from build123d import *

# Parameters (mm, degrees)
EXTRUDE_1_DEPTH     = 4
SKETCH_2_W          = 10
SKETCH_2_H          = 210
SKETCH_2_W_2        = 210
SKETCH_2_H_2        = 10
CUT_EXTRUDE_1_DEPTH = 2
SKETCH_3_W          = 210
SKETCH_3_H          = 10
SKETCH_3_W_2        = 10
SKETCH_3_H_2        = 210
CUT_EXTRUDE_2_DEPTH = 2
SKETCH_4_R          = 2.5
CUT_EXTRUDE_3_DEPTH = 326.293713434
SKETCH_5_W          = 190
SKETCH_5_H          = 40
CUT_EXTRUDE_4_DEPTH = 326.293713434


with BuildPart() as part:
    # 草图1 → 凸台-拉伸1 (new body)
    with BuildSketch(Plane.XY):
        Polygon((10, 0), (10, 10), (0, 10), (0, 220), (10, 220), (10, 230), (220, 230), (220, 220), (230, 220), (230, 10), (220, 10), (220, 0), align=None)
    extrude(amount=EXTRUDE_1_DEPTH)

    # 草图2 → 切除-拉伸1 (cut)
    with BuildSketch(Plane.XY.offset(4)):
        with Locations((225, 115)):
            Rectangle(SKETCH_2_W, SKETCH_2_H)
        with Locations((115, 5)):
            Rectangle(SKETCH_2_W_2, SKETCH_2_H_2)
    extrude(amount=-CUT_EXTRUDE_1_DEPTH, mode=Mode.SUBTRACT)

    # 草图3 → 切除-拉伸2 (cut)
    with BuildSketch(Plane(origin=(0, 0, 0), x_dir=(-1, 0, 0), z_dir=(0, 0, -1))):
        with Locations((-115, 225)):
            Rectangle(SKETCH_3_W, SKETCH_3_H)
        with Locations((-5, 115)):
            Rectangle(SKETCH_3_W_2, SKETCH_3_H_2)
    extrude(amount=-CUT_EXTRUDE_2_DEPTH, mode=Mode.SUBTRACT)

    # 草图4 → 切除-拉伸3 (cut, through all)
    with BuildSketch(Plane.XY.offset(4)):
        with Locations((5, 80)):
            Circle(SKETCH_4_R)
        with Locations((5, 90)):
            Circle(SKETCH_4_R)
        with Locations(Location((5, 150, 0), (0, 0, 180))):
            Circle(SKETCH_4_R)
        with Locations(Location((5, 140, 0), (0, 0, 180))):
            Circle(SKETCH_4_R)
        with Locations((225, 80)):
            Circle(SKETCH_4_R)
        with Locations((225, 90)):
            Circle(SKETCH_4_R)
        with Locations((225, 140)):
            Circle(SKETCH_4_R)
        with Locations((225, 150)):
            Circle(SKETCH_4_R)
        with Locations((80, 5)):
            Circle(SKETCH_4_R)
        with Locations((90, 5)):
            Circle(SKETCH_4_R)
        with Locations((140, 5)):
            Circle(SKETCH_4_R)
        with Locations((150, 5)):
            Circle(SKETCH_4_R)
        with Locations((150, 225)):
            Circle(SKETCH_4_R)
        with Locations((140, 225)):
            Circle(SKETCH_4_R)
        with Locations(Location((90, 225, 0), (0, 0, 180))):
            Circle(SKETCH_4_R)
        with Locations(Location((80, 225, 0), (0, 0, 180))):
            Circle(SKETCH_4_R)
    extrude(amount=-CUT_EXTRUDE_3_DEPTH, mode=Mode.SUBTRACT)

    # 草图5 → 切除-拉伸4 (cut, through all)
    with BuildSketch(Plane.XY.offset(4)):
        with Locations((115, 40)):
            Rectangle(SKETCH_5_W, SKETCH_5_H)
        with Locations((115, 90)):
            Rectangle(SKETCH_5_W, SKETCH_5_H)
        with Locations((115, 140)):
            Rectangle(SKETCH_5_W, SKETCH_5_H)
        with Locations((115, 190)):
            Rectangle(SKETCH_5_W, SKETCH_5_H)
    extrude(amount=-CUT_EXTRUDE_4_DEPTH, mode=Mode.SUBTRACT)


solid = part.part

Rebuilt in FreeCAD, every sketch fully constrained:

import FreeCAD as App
import Part
import Sketcher
from FreeCAD import Vector

doc = App.newDocument("Part")
body = doc.addObject("PartDesign::Body", "Body")

sketch1 = body.newObject("Sketcher::SketchObject", "Sketch")
sketch1.AttachmentSupport = (doc.getObject("XY_Plane"), [""])
sketch1.MapMode = "FlatFace"
sketch1.addGeometry(Part.LineSegment(Vector(10, 10, 0), Vector(10, 0, 0)), False)
sketch1.addGeometry(Part.LineSegment(Vector(10, 0, 0), Vector(220, 0, 0)), False)
sketch1.addGeometry(Part.LineSegment(Vector(220, 0, 0), Vector(220, 10, 0)), False)
sketch1.addGeometry(Part.LineSegment(Vector(220, 10, 0), Vector(230, 10, 0)), False)
sketch1.addGeometry(Part.LineSegment(Vector(230, 10, 0), Vector(230, 220, 0)), False)
sketch1.addGeometry(Part.LineSegment(Vector(230, 220, 0), Vector(220, 220, 0)), False)
sketch1.addGeometry(Part.LineSegment(Vector(220, 220, 0), Vector(220, 230, 0)), False)
sketch1.addGeometry(Part.LineSegment(Vector(220, 230, 0), Vector(10, 230, 0)), False)
sketch1.addGeometry(Part.LineSegment(Vector(10, 230, 0), Vector(10, 220, 0)), False)
sketch1.addGeometry(Part.LineSegment(Vector(10, 220, 0), Vector(0, 220, 0)), False)
sketch1.addGeometry(Part.LineSegment(Vector(0, 220, 0), Vector(0, 10, 0)), False)
sketch1.addGeometry(Part.LineSegment(Vector(0, 10, 0), Vector(10, 10, 0)), False)
sketch1.addConstraint(Sketcher.Constraint("Coincident", 0, 2, 1, 1))
sketch1.addConstraint(Sketcher.Constraint("Coincident", 1, 2, 2, 1))
sketch1.addConstraint(Sketcher.Constraint("Coincident", 2, 2, 3, 1))
sketch1.addConstraint(Sketcher.Constraint("Coincident", 3, 2, 4, 1))
sketch1.addConstraint(Sketcher.Constraint("Coincident", 4, 2, 5, 1))
sketch1.addConstraint(Sketcher.Constraint("Coincident", 5, 2, 6, 1))
sketch1.addConstraint(Sketcher.Constraint("Coincident", 6, 2, 7, 1))
sketch1.addConstraint(Sketcher.Constraint("Coincident", 7, 2, 8, 1))
sketch1.addConstraint(Sketcher.Constraint("Coincident", 8, 2, 9, 1))
sketch1.addConstraint(Sketcher.Constraint("Coincident", 9, 2, 10, 1))
sketch1.addConstraint(Sketcher.Constraint("Coincident", 10, 2, 11, 1))
sketch1.addConstraint(Sketcher.Constraint("Coincident", 11, 2, 0, 1))
sketch1.addConstraint(Sketcher.Constraint("Vertical", 0))
sketch1.addConstraint(Sketcher.Constraint("Horizontal", 1))
sketch1.addConstraint(Sketcher.Constraint("Vertical", 2))
sketch1.addConstraint(Sketcher.Constraint("Horizontal", 3))
sketch1.addConstraint(Sketcher.Constraint("Vertical", 4))
sketch1.addConstraint(Sketcher.Constraint("Horizontal", 5))
sketch1.addConstraint(Sketcher.Constraint("Vertical", 6))
sketch1.addConstraint(Sketcher.Constraint("Horizontal", 7))
sketch1.addConstraint(Sketcher.Constraint("Vertical", 8))
sketch1.addConstraint(Sketcher.Constraint("Horizontal", 9))
sketch1.addConstraint(Sketcher.Constraint("Vertical", 10))
sketch1.addConstraint(Sketcher.Constraint("Horizontal", 11))
sketch1.addConstraint(Sketcher.Constraint("PointOnObject", 0, 2, -1))
sketch1.addConstraint(Sketcher.Constraint("PointOnObject", 9, 2, -2))
sketch1.addConstraint(Sketcher.Constraint("Horizontal", 5, 2, 8, 2))
sketch1.addConstraint(Sketcher.Constraint("Horizontal", 3, 2, 10, 2))
sketch1.addConstraint(Sketcher.Constraint("Vertical", 2, 2, 5, 2))
sketch1.addConstraint(Sketcher.Constraint("Vertical", 0, 2, 7, 2))
sketch1.addConstraint(Sketcher.Constraint("Equal", 5, 9))
sketch1.addConstraint(Sketcher.Constraint("Equal", 11, 0))
sketch1.addConstraint(Sketcher.Constraint("Equal", 7, 4))
sketch1.addConstraint(Sketcher.Constraint("Equal", 2, 6))
sketch1.addConstraint(Sketcher.Constraint("DistanceX", 1, 1, 1, 2, 210.0))
sketch1.addConstraint(Sketcher.Constraint("DistanceX", 3, 1, 3, 2, 10.0))
pad1 = body.newObject("PartDesign::Pad", "Pad")
pad1.Profile = sketch1
pad1.Length = 4

sketch2 = body.newObject("Sketcher::SketchObject", "Sketch001")
sketch2.AttachmentSupport = (doc.getObject("XY_Plane"), [""])
sketch2.MapMode = "FlatFace"
sketch2.AttachmentOffset = App.Placement(Vector(0, 0, 4), App.Rotation())
sketch2.addGeometry(Part.LineSegment(Vector(220, 220, 0), Vector(220, 10, 0)), False)
sketch2.addGeometry(Part.LineSegment(Vector(220, 10, 0), Vector(230, 10, 0)), False)
sketch2.addGeometry(Part.LineSegment(Vector(230, 10, 0), Vector(230, 220, 0)), False)
sketch2.addGeometry(Part.LineSegment(Vector(230, 220, 0), Vector(220, 220, 0)), False)
sketch2.addGeometry(Part.LineSegment(Vector(10, 10, 0), Vector(10, 0, 0)), False)
sketch2.addGeometry(Part.LineSegment(Vector(10, 0, 0), Vector(220, 0, 0)), False)
sketch2.addGeometry(Part.LineSegment(Vector(220, 0, 0), Vector(220, 10, 0)), False)
sketch2.addGeometry(Part.LineSegment(Vector(220, 10, 0), Vector(10, 10, 0)), False)
sketch2.addConstraint(Sketcher.Constraint("Coincident", 0, 2, 1, 1))
sketch2.addConstraint(Sketcher.Constraint("Coincident", 1, 2, 2, 1))
sketch2.addConstraint(Sketcher.Constraint("Coincident", 2, 2, 3, 1))
sketch2.addConstraint(Sketcher.Constraint("Coincident", 3, 2, 0, 1))
sketch2.addConstraint(Sketcher.Constraint("Coincident", 4, 2, 5, 1))
sketch2.addConstraint(Sketcher.Constraint("Coincident", 5, 2, 6, 1))
sketch2.addConstraint(Sketcher.Constraint("Coincident", 6, 2, 7, 1))
sketch2.addConstraint(Sketcher.Constraint("Coincident", 7, 2, 4, 1))
sketch2.addConstraint(Sketcher.Constraint("Vertical", 0))
sketch2.addConstraint(Sketcher.Constraint("Horizontal", 1))
sketch2.addConstraint(Sketcher.Constraint("Vertical", 2))
sketch2.addConstraint(Sketcher.Constraint("Horizontal", 3))
sketch2.addConstraint(Sketcher.Constraint("Vertical", 4))
sketch2.addConstraint(Sketcher.Constraint("Horizontal", 5))
sketch2.addConstraint(Sketcher.Constraint("Vertical", 6))
sketch2.addConstraint(Sketcher.Constraint("Horizontal", 7))
sketch2.addConstraint(Sketcher.Constraint("Coincident", 6, 2, 0, 2))
sketch2.addConstraint(Sketcher.Constraint("PointOnObject", 4, 2, -1))
sketch2.addConstraint(Sketcher.Constraint("Equal", 7, 0))
sketch2.addConstraint(Sketcher.Constraint("Equal", 3, 4))
sketch2.addConstraint(Sketcher.Constraint("DistanceX", 1, 1, 1, 2, 10.0))
sketch2.addConstraint(Sketcher.Constraint("DistanceX", 5, 1, 5, 2, 210.0))
sketch2.addConstraint(Sketcher.Constraint("DistanceX", -1, 1, 0, 2, 220.0))
pocket1 = body.newObject("PartDesign::Pocket", "Pocket")
pocket1.Profile = sketch2
pocket1.Length = 2

sketch3 = body.newObject("Sketcher::SketchObject", "Sketch002")
sketch3.AttachmentSupport = (doc.getObject("XY_Plane"), [""])
sketch3.MapMode = "FlatFace"
sketch3.addGeometry(Part.LineSegment(Vector(220, 230, 0), Vector(220, 220, 0)), False)
sketch3.addGeometry(Part.LineSegment(Vector(220, 220, 0), Vector(10, 220, 0)), False)
sketch3.addGeometry(Part.LineSegment(Vector(10, 220, 0), Vector(10, 230, 0)), False)
sketch3.addGeometry(Part.LineSegment(Vector(10, 230, 0), Vector(220, 230, 0)), False)
sketch3.addGeometry(Part.LineSegment(Vector(10, 220, 0), Vector(10, 10, 0)), False)
sketch3.addGeometry(Part.LineSegment(Vector(10, 10, 0), Vector(0, 10, 0)), False)
sketch3.addGeometry(Part.LineSegment(Vector(0, 10, 0), Vector(0, 220, 0)), False)
sketch3.addGeometry(Part.LineSegment(Vector(0, 220, 0), Vector(10, 220, 0)), False)
sketch3.addConstraint(Sketcher.Constraint("Coincident", 0, 2, 1, 1))
sketch3.addConstraint(Sketcher.Constraint("Coincident", 1, 2, 2, 1))
sketch3.addConstraint(Sketcher.Constraint("Coincident", 2, 2, 3, 1))
sketch3.addConstraint(Sketcher.Constraint("Coincident", 3, 2, 0, 1))
sketch3.addConstraint(Sketcher.Constraint("Coincident", 4, 2, 5, 1))
sketch3.addConstraint(Sketcher.Constraint("Coincident", 5, 2, 6, 1))
sketch3.addConstraint(Sketcher.Constraint("Coincident", 6, 2, 7, 1))
sketch3.addConstraint(Sketcher.Constraint("Coincident", 7, 2, 4, 1))
sketch3.addConstraint(Sketcher.Constraint("Vertical", 0))
sketch3.addConstraint(Sketcher.Constraint("Horizontal", 1))
sketch3.addConstraint(Sketcher.Constraint("Vertical", 2))
sketch3.addConstraint(Sketcher.Constraint("Horizontal", 3))
sketch3.addConstraint(Sketcher.Constraint("Vertical", 4))
sketch3.addConstraint(Sketcher.Constraint("Horizontal", 5))
sketch3.addConstraint(Sketcher.Constraint("Vertical", 6))
sketch3.addConstraint(Sketcher.Constraint("Horizontal", 7))
sketch3.addConstraint(Sketcher.Constraint("Coincident", 7, 2, 1, 2))
sketch3.addConstraint(Sketcher.Constraint("PointOnObject", 5, 2, -2))
sketch3.addConstraint(Sketcher.Constraint("Equal", 7, 0))
sketch3.addConstraint(Sketcher.Constraint("Equal", 3, 4))
sketch3.addConstraint(Sketcher.Constraint("DistanceX", 1, 2, 1, 1, 210.0))
sketch3.addConstraint(Sketcher.Constraint("DistanceX", 5, 2, 5, 1, 10.0))
sketch3.addConstraint(Sketcher.Constraint("DistanceY", -1, 1, 0, 2, 220.0))
pocket2 = body.newObject("PartDesign::Pocket", "Pocket001")
pocket2.Profile = sketch3
pocket2.Length = 2
pocket2.Reversed = True

sketch4 = body.newObject("Sketcher::SketchObject", "Sketch003")
sketch4.AttachmentSupport = (doc.getObject("XY_Plane"), [""])
sketch4.MapMode = "FlatFace"
sketch4.AttachmentOffset = App.Placement(Vector(0, 0, 4), App.Rotation())
sketch4.addGeometry(Part.Circle(Vector(5, 80, 0), Vector(0, 0, 1), 2.5), False)
sketch4.addGeometry(Part.Circle(Vector(5, 90, 0), Vector(0, 0, 1), 2.5), False)
sketch4.addGeometry(Part.Circle(Vector(5, 150, 0), Vector(0, 0, 1), 2.5), False)
sketch4.addGeometry(Part.Circle(Vector(5, 140, 0), Vector(0, 0, 1), 2.5), False)
sketch4.addGeometry(Part.Circle(Vector(225, 80, 0), Vector(0, 0, 1), 2.5), False)
sketch4.addGeometry(Part.Circle(Vector(225, 90, 0), Vector(0, 0, 1), 2.5), False)
sketch4.addGeometry(Part.Circle(Vector(225, 140, 0), Vector(0, 0, 1), 2.5), False)
sketch4.addGeometry(Part.Circle(Vector(225, 150, 0), Vector(0, 0, 1), 2.5), False)
sketch4.addGeometry(Part.Circle(Vector(80, 5, 0), Vector(0, 0, 1), 2.5), False)
sketch4.addGeometry(Part.Circle(Vector(90, 5, 0), Vector(0, 0, 1), 2.5), False)
sketch4.addGeometry(Part.Circle(Vector(140, 5, 0), Vector(0, 0, 1), 2.5), False)
sketch4.addGeometry(Part.Circle(Vector(150, 5, 0), Vector(0, 0, 1), 2.5), False)
sketch4.addGeometry(Part.Circle(Vector(150, 225, 0), Vector(0, 0, 1), 2.5), False)
sketch4.addGeometry(Part.Circle(Vector(140, 225, 0), Vector(0, 0, 1), 2.5), False)
sketch4.addGeometry(Part.Circle(Vector(90, 225, 0), Vector(0, 0, 1), 2.5), False)
sketch4.addGeometry(Part.Circle(Vector(80, 225, 0), Vector(0, 0, 1), 2.5), False)
sketch4.addConstraint(Sketcher.Constraint("Equal", 0, 1))
sketch4.addConstraint(Sketcher.Constraint("Equal", 1, 2))
sketch4.addConstraint(Sketcher.Constraint("Equal", 2, 3))
sketch4.addConstraint(Sketcher.Constraint("Equal", 3, 4))
sketch4.addConstraint(Sketcher.Constraint("Equal", 4, 5))
sketch4.addConstraint(Sketcher.Constraint("Equal", 5, 6))
sketch4.addConstraint(Sketcher.Constraint("Equal", 6, 7))
sketch4.addConstraint(Sketcher.Constraint("Equal", 7, 8))
sketch4.addConstraint(Sketcher.Constraint("Equal", 8, 9))
sketch4.addConstraint(Sketcher.Constraint("Equal", 9, 10))
sketch4.addConstraint(Sketcher.Constraint("Equal", 10, 11))
sketch4.addConstraint(Sketcher.Constraint("Equal", 11, 12))
sketch4.addConstraint(Sketcher.Constraint("Equal", 12, 13))
sketch4.addConstraint(Sketcher.Constraint("Equal", 13, 14))
sketch4.addConstraint(Sketcher.Constraint("Equal", 14, 15))
sketch4.addConstraint(Sketcher.Constraint("Horizontal", 0, 3, 4, 3))
sketch4.addConstraint(Sketcher.Constraint("Horizontal", 1, 3, 5, 3))
sketch4.addConstraint(Sketcher.Constraint("Horizontal", 3, 3, 6, 3))
sketch4.addConstraint(Sketcher.Constraint("Horizontal", 2, 3, 7, 3))
sketch4.addConstraint(Sketcher.Constraint("Horizontal", 8, 3, 9, 3))
sketch4.addConstraint(Sketcher.Constraint("Horizontal", 9, 3, 10, 3))
sketch4.addConstraint(Sketcher.Constraint("Horizontal", 10, 3, 11, 3))
sketch4.addConstraint(Sketcher.Constraint("Horizontal", 12, 3, 13, 3))
sketch4.addConstraint(Sketcher.Constraint("Horizontal", 13, 3, 14, 3))
sketch4.addConstraint(Sketcher.Constraint("Horizontal", 14, 3, 15, 3))
sketch4.addConstraint(Sketcher.Constraint("Vertical", 0, 3, 1, 3))
sketch4.addConstraint(Sketcher.Constraint("Vertical", 1, 3, 2, 3))
sketch4.addConstraint(Sketcher.Constraint("Vertical", 2, 3, 3, 3))
sketch4.addConstraint(Sketcher.Constraint("Vertical", 4, 3, 5, 3))
sketch4.addConstraint(Sketcher.Constraint("Vertical", 5, 3, 6, 3))
sketch4.addConstraint(Sketcher.Constraint("Vertical", 6, 3, 7, 3))
sketch4.addConstraint(Sketcher.Constraint("Vertical", 11, 3, 12, 3))
sketch4.addConstraint(Sketcher.Constraint("Vertical", 10, 3, 13, 3))
sketch4.addConstraint(Sketcher.Constraint("Vertical", 9, 3, 14, 3))
sketch4.addConstraint(Sketcher.Constraint("Vertical", 8, 3, 15, 3))
sketch4.addConstraint(Sketcher.Constraint("Diameter", 0, 5.0))
sketch4.addConstraint(Sketcher.Constraint("DistanceX", -1, 1, 0, 3, 5.0))
sketch4.addConstraint(Sketcher.Constraint("DistanceY", -1, 1, 0, 3, 80.0))
sketch4.addConstraint(Sketcher.Constraint("DistanceY", -1, 1, 1, 3, 90.0))
sketch4.addConstraint(Sketcher.Constraint("DistanceY", -1, 1, 2, 3, 150.0))
sketch4.addConstraint(Sketcher.Constraint("DistanceY", -1, 1, 3, 3, 140.0))
sketch4.addConstraint(Sketcher.Constraint("DistanceX", -1, 1, 4, 3, 225.0))
sketch4.addConstraint(Sketcher.Constraint("DistanceX", -1, 1, 8, 3, 80.0))
sketch4.addConstraint(Sketcher.Constraint("DistanceY", -1, 1, 8, 3, 5.0))
sketch4.addConstraint(Sketcher.Constraint("DistanceX", -1, 1, 9, 3, 90.0))
sketch4.addConstraint(Sketcher.Constraint("DistanceX", -1, 1, 10, 3, 140.0))
sketch4.addConstraint(Sketcher.Constraint("DistanceX", -1, 1, 11, 3, 150.0))
sketch4.addConstraint(Sketcher.Constraint("DistanceY", -1, 1, 12, 3, 225.0))
pocket3 = body.newObject("PartDesign::Pocket", "Pocket002")
pocket3.Profile = sketch4
pocket3.Type = "ThroughAll"

sketch5 = body.newObject("Sketcher::SketchObject", "Sketch004")
sketch5.AttachmentSupport = (doc.getObject("XY_Plane"), [""])
sketch5.MapMode = "FlatFace"
sketch5.AttachmentOffset = App.Placement(Vector(0, 0, 4), App.Rotation())
sketch5.addGeometry(Part.LineSegment(Vector(20, 60, 0), Vector(20, 20, 0)), False)
sketch5.addGeometry(Part.LineSegment(Vector(20, 20, 0), Vector(210, 20, 0)), False)
sketch5.addGeometry(Part.LineSegment(Vector(210, 20, 0), Vector(210, 60, 0)), False)
sketch5.addGeometry(Part.LineSegment(Vector(210, 60, 0), Vector(20, 60, 0)), False)
sketch5.addGeometry(Part.LineSegment(Vector(20, 110, 0), Vector(20, 70, 0)), False)
sketch5.addGeometry(Part.LineSegment(Vector(20, 70, 0), Vector(210, 70, 0)), False)
sketch5.addGeometry(Part.LineSegment(Vector(210, 70, 0), Vector(210, 110, 0)), False)
sketch5.addGeometry(Part.LineSegment(Vector(210, 110, 0), Vector(20, 110, 0)), False)
sketch5.addGeometry(Part.LineSegment(Vector(20, 160, 0), Vector(20, 120, 0)), False)
sketch5.addGeometry(Part.LineSegment(Vector(20, 120, 0), Vector(210, 120, 0)), False)
sketch5.addGeometry(Part.LineSegment(Vector(210, 120, 0), Vector(210, 160, 0)), False)
sketch5.addGeometry(Part.LineSegment(Vector(210, 160, 0), Vector(20, 160, 0)), False)
sketch5.addGeometry(Part.LineSegment(Vector(20, 210, 0), Vector(20, 170, 0)), False)
sketch5.addGeometry(Part.LineSegment(Vector(20, 170, 0), Vector(210, 170, 0)), False)
sketch5.addGeometry(Part.LineSegment(Vector(210, 170, 0), Vector(210, 210, 0)), False)
sketch5.addGeometry(Part.LineSegment(Vector(210, 210, 0), Vector(20, 210, 0)), False)
sketch5.addConstraint(Sketcher.Constraint("Coincident", 0, 2, 1, 1))
sketch5.addConstraint(Sketcher.Constraint("Coincident", 1, 2, 2, 1))
sketch5.addConstraint(Sketcher.Constraint("Coincident", 2, 2, 3, 1))
sketch5.addConstraint(Sketcher.Constraint("Coincident", 3, 2, 0, 1))
sketch5.addConstraint(Sketcher.Constraint("Coincident", 4, 2, 5, 1))
sketch5.addConstraint(Sketcher.Constraint("Coincident", 5, 2, 6, 1))
sketch5.addConstraint(Sketcher.Constraint("Coincident", 6, 2, 7, 1))
sketch5.addConstraint(Sketcher.Constraint("Coincident", 7, 2, 4, 1))
sketch5.addConstraint(Sketcher.Constraint("Coincident", 8, 2, 9, 1))
sketch5.addConstraint(Sketcher.Constraint("Coincident", 9, 2, 10, 1))
sketch5.addConstraint(Sketcher.Constraint("Coincident", 10, 2, 11, 1))
sketch5.addConstraint(Sketcher.Constraint("Coincident", 11, 2, 8, 1))
sketch5.addConstraint(Sketcher.Constraint("Coincident", 12, 2, 13, 1))
sketch5.addConstraint(Sketcher.Constraint("Coincident", 13, 2, 14, 1))
sketch5.addConstraint(Sketcher.Constraint("Coincident", 14, 2, 15, 1))
sketch5.addConstraint(Sketcher.Constraint("Coincident", 15, 2, 12, 1))
sketch5.addConstraint(Sketcher.Constraint("Vertical", 0))
sketch5.addConstraint(Sketcher.Constraint("Horizontal", 1))
sketch5.addConstraint(Sketcher.Constraint("Vertical", 2))
sketch5.addConstraint(Sketcher.Constraint("Horizontal", 3))
sketch5.addConstraint(Sketcher.Constraint("Vertical", 4))
sketch5.addConstraint(Sketcher.Constraint("Horizontal", 5))
sketch5.addConstraint(Sketcher.Constraint("Vertical", 6))
sketch5.addConstraint(Sketcher.Constraint("Horizontal", 7))
sketch5.addConstraint(Sketcher.Constraint("Vertical", 8))
sketch5.addConstraint(Sketcher.Constraint("Horizontal", 9))
sketch5.addConstraint(Sketcher.Constraint("Vertical", 10))
sketch5.addConstraint(Sketcher.Constraint("Horizontal", 11))
sketch5.addConstraint(Sketcher.Constraint("Vertical", 12))
sketch5.addConstraint(Sketcher.Constraint("Horizontal", 13))
sketch5.addConstraint(Sketcher.Constraint("Vertical", 14))
sketch5.addConstraint(Sketcher.Constraint("Horizontal", 15))
sketch5.addConstraint(Sketcher.Constraint("Vertical", 3, 2, 4, 2))
sketch5.addConstraint(Sketcher.Constraint("Vertical", 2, 2, 5, 2))
sketch5.addConstraint(Sketcher.Constraint("Vertical", 7, 2, 8, 2))
sketch5.addConstraint(Sketcher.Constraint("Vertical", 6, 2, 9, 2))
sketch5.addConstraint(Sketcher.Constraint("Vertical", 11, 2, 12, 2))
sketch5.addConstraint(Sketcher.Constraint("Vertical", 10, 2, 13, 2))
sketch5.addConstraint(Sketcher.Constraint("Equal", 2, 4))
sketch5.addConstraint(Sketcher.Constraint("Equal", 6, 8))
sketch5.addConstraint(Sketcher.Constraint("Equal", 10, 12))
sketch5.addConstraint(Sketcher.Constraint("DistanceX", 1, 1, 1, 2, 190.0))
sketch5.addConstraint(Sketcher.Constraint("DistanceY", 0, 2, 0, 1, 40.0))
sketch5.addConstraint(Sketcher.Constraint("DistanceX", -1, 1, 0, 2, 20.0))
sketch5.addConstraint(Sketcher.Constraint("DistanceY", -1, 1, 0, 2, 20.0))
sketch5.addConstraint(Sketcher.Constraint("DistanceY", -1, 1, 4, 2, 70.0))
sketch5.addConstraint(Sketcher.Constraint("DistanceY", -1, 1, 8, 2, 120.0))
sketch5.addConstraint(Sketcher.Constraint("DistanceY", -1, 1, 12, 2, 170.0))
pocket4 = body.newObject("PartDesign::Pocket", "Pocket003")
pocket4.Profile = sketch5
pocket4.Type = "ThroughAll"

doc.recompute()
